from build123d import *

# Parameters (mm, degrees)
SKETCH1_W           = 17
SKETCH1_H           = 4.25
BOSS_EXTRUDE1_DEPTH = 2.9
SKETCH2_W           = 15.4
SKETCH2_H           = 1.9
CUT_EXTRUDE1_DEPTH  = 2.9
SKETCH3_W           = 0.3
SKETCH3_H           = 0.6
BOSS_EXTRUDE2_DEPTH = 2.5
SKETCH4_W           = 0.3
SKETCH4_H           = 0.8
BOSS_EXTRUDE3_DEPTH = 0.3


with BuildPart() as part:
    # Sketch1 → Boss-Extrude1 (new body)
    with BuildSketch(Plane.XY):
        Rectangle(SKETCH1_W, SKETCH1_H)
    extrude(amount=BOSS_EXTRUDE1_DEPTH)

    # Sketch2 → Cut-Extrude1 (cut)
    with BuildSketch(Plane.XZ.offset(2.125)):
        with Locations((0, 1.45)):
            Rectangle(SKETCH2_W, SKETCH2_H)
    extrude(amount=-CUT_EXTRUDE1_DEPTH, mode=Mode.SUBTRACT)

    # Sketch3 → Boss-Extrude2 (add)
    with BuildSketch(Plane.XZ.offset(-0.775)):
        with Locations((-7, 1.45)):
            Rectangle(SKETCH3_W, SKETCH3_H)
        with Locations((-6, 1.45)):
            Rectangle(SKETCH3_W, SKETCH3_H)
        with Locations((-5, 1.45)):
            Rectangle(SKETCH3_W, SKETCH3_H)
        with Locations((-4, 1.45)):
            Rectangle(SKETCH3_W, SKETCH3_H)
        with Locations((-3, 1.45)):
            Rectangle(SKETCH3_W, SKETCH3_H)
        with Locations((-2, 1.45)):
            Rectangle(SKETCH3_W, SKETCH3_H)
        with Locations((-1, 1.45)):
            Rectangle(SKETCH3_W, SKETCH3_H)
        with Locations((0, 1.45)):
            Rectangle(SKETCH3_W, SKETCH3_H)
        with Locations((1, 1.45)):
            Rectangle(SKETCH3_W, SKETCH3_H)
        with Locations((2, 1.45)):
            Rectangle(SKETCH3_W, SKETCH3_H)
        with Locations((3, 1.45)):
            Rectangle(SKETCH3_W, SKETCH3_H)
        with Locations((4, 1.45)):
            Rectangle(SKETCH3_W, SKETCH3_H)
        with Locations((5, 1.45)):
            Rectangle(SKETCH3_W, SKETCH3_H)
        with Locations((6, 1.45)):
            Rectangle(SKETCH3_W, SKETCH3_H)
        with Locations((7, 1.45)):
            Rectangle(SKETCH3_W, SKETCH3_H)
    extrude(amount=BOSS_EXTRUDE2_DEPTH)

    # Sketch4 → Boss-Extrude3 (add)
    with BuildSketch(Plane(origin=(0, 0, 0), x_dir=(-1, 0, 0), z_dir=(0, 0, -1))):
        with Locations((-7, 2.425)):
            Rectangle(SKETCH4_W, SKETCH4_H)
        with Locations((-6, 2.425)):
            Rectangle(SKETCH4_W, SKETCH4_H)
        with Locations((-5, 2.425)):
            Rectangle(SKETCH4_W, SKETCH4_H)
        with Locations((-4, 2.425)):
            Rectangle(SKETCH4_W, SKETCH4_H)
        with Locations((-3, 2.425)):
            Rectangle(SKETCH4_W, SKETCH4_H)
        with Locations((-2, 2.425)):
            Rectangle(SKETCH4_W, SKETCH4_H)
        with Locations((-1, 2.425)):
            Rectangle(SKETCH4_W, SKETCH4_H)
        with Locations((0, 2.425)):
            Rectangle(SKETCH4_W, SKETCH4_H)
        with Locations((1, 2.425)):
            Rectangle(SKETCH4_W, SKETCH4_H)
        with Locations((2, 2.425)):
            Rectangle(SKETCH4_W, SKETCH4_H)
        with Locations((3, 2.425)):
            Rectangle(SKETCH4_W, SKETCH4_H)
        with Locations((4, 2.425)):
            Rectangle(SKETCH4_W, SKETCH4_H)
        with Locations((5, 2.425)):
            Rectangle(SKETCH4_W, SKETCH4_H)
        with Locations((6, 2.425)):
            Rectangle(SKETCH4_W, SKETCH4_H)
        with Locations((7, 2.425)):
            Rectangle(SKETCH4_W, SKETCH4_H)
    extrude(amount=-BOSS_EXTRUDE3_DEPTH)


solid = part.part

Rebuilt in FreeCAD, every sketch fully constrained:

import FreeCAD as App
import Part
import Sketcher

V = App.Vector

doc = App.newDocument("Part")
body = doc.addObject("PartDesign::Body", "Body")

# Sketch on XY plane
sketch1 = body.newObject("Sketcher::SketchObject", "Sketch")
sketch1.AttachmentSupport = (doc.getObject("XY_Plane"), [""])
sketch1.MapMode = "FlatFace"
sketch1.addGeometry(Part.LineSegment(V(-8.5, 2.1, 0), V(-8.5, -2.1, 0)), False)
sketch1.addGeometry(Part.LineSegment(V(-8.5, -2.1, 0), V(8.5, -2.1, 0)), False)
sketch1.addGeometry(Part.LineSegment(V(8.5, -2.1, 0), V(8.5, 2.1, 0)), False)
sketch1.addGeometry(Part.LineSegment(V(8.5, 2.1, 0), V(-8.5, 2.1, 0)), False)
sketch1.addConstraint(Sketcher.Constraint("Coincident", 0, 2, 1, 1))
sketch1.addConstraint(Sketcher.Constraint("Coincident", 1, 2, 2, 1))
sketch1.addConstraint(Sketcher.Constraint("Coincident", 2, 2, 3, 1))
sketch1.addConstraint(Sketcher.Constraint("Coincident", 3, 2, 0, 1))
sketch1.addConstraint(Sketcher.Constraint("Vertical", 0))
sketch1.addConstraint(Sketcher.Constraint("Horizontal", 1))
sketch1.addConstraint(Sketcher.Constraint("Vertical", 2))
sketch1.addConstraint(Sketcher.Constraint("Horizontal", 3))
sketch1.addConstraint(Sketcher.Constraint("Symmetric", 0, 2, 2, 2, -1, 1))
sketch1.addConstraint(Sketcher.Constraint("DistanceX", 1, 1, 1, 2, 17.0))
sketch1.addConstraint(Sketcher.Constraint("DistanceY", 0, 2, 0, 1, 4.25))
pad1 = body.newObject("PartDesign::Pad", "Pad")
pad1.Profile = sketch1
pad1.Length = 2.9

# Sketch on XZ plane
sketch2 = body.newObject("Sketcher::SketchObject", "Sketch001")
sketch2.AttachmentSupport = (doc.getObject("XZ_Plane"), [""])
sketch2.MapMode = "FlatFace"
sketch2.AttachmentOffset = App.Placement(V(0, 0, 2.125), App.Rotation())
sketch2.addGeometry(Part.LineSegment(V(-7.7, 2.4, 0), V(-7.7, 0.5, 0)), False)
sketch2.addGeometry(Part.LineSegment(V(-7.7, 0.5, 0), V(7.7, 0.5, 0)), False)
sketch2.addGeometry(Part.LineSegment(V(7.7, 0.5, 0), V(7.7, 2.4, 0)), False)
sketch2.addGeometry(Part.LineSegment(V(7.7, 2.4, 0), V(-7.7, 2.4, 0)), False)
sketch2.addConstraint(Sketcher.Constraint("Coincident", 0, 2, 1, 1))
sketch2.addConstraint(Sketcher.Constraint("Coincident", 1, 2, 2, 1))
sketch2.addConstraint(Sketcher.Constraint("Coincident", 2, 2, 3, 1))
sketch2.addConstraint(Sketcher.Constraint("Coincident", 3, 2, 0, 1))
sketch2.addConstraint(Sketcher.Constraint("Vertical", 0))
sketch2.addConstraint(Sketcher.Constraint("Horizontal", 1))
sketch2.addConstraint(Sketcher.Constraint("Vertical", 2))
sketch2.addConstraint(Sketcher.Constraint("Horizontal", 3))
sketch2.addConstraint(Sketcher.Constraint("DistanceX", 1, 1, 1, 2, 15.4))
sketch2.addConstraint(Sketcher.Constraint("DistanceY", 0, 2, 0, 1, 1.9))
sketch2.addConstraint(Sketcher.Constraint("DistanceX", 0, 2, -1, 1, 7.7))
sketch2.addConstraint(Sketcher.Constraint("DistanceY", -1, 1, 0, 2, 0.5))
pocket1 = body.newObject("PartDesign::Pocket", "Pocket")
pocket1.Profile = sketch2
pocket1.Length = 2.9

# Sketch on XZ plane
sketch3 = body.newObject("Sketcher::SketchObject", "Sketch002")
sketch3.AttachmentSupport = (doc.getObject("XZ_Plane"), [""])
sketch3.MapMode = "FlatFace"
sketch3.AttachmentOffset = App.Placement(V(0, 0, -0.775), App.Rotation())
sketch3.addGeometry(Part.LineSegment(V(-7.15, 1.75, 0), V(-7.15, 1.15, 0)), False)
sketch3.addGeometry(Part.LineSegment(V(-7.15, 1.15, 0), V(-6.85, 1.15, 0)), False)
sketch3.addGeometry(Part.LineSegment(V(-6.85, 1.15, 0), V(-6.85, 1.75, 0)), False)
sketch3.addGeometry(Part.LineSegment(V(-6.85, 1.75, 0), V(-7.15, 1.75, 0)), False)
sketch3.addGeometry(Part.LineSegment(V(-6.15, 1.75, 0), V(-6.15, 1.15, 0)), False)
sketch3.addGeometry(Part.LineSegment(V(-6.15, 1.15, 0), V(-5.85, 1.15, 0)), False)
sketch3.addGeometry(Part.LineSegment(V(-5.85, 1.15, 0), V(-5.85, 1.75, 0)), False)
sketch3.addGeometry(Part.LineSegment(V(-5.85, 1.75, 0), V(-6.15, 1.75, 0)), False)
sketch3.addGeometry(Part.LineSegment(V(-5.15, 1.75, 0), V(-5.15, 1.15, 0)), False)
sketch3.addGeometry(Part.LineSegment(V(-5.15, 1.15, 0), V(-4.85, 1.15, 0)), False)
sketch3.addGeometry(Part.LineSegment(V(-4.85, 1.15, 0), V(-4.85, 1.75, 0)), False)
sketch3.addGeometry(Part.LineSegment(V(-4.85, 1.75, 0), V(-5.15, 1.75, 0)), False)
sketch3.addGeometry(Part.LineSegment(V(-4.15, 1.75, 0), V(-4.15, 1.15, 0)), False)
sketch3.addGeometry(Part.LineSegment(V(-4.15, 1.15, 0), V(-3.85, 1.15, 0)), False)
sketch3.addGeometry(Part.LineSegment(V(-3.85, 1.15, 0), V(-3.85, 1.75, 0)), False)
sketch3.addGeometry(Part.LineSegment(V(-3.85, 1.75, 0), V(-4.15, 1.75, 0)), False)
sketch3.addGeometry(Part.LineSegment(V(-3.15, 1.75, 0), V(-3.15, 1.15, 0)), False)
sketch3.addGeometry(Part.LineSegment(V(-3.15, 1.15, 0), V(-2.85, 1.15, 0)), False)
sketch3.addGeometry(Part.LineSegment(V(-2.85, 1.15, 0), V(-2.85, 1.75, 0)), False)
sketch3.addGeometry(Part.LineSegment(V(-2.85, 1.75, 0), V(-3.15, 1.75, 0)), False)
sketch3.addGeometry(Part.LineSegment(V(-2.15, 1.75, 0), V(-2.15, 1.15, 0)), False)
sketch3.addGeometry(Part.LineSegment(V(-2.15, 1.15, 0), V(-1.85, 1.15, 0)), False)
sketch3.addGeometry(Part.LineSegment(V(-1.85, 1.15, 0), V(-1.85, 1.75, 0)), False)
sketch3.addGeometry(Part.LineSegment(V(-1.85, 1.75, 0), V(-2.15, 1.75, 0)), False)
sketch3.addGeometry(Part.LineSegment(V(-1.15, 1.75, 0), V(-1.15, 1.15, 0)), False)
sketch3.addGeometry(Part.LineSegment(V(-1.15, 1.15, 0), V(-0.85, 1.15, 0)), False)
sketch3.addGeometry(Part.LineSegment(V(-0.85, 1.15, 0), V(-0.85, 1.75, 0)), False)
sketch3.addGeometry(Part.LineSegment(V(-0.85, 1.75, 0), V(-1.15, 1.75, 0)), False)
sketch3.addGeometry(Part.LineSegment(V(-0.15, 1.75, 0), V(-0.15, 1.15, 0)), False)
sketch3.addGeometry(Part.LineSegment(V(-0.15, 1.15, 0), V(0.15, 1.15, 0)), False)
sketch3.addGeometry(Part.LineSegment(V(0.15, 1.15, 0), V(0.15, 1.75, 0)), False)
sketch3.addGeometry(Part.LineSegment(V(0.15, 1.75, 0), V(-0.15, 1.75, 0)), False)
sketch3.addGeometry(Part.LineSegment(V(0.85, 1.75, 0), V(0.85, 1.15, 0)), False)
sketch3.addGeometry(Part.LineSegment(V(0.85, 1.15, 0), V(1.15, 1.15, 0)), False)
sketch3.addGeometry(Part.LineSegment(V(1.15, 1.15, 0), V(1.15, 1.75, 0)), False)
sketch3.addGeometry(Part.LineSegment(V(1.15, 1.75, 0), V(0.85, 1.75, 0)), False)
sketch3.addGeometry(Part.LineSegment(V(1.85, 1.75, 0), V(1.85, 1.15, 0)), False)
sketch3.addGeometry(Part.LineSegment(V(1.85, 1.15, 0), V(2.15, 1.15, 0)), False)
sketch3.addGeometry(Part.LineSegment(V(2.15, 1.15, 0), V(2.15, 1.75, 0)), False)
sketch3.addGeometry(Part.LineSegment(V(2.15, 1.75, 0), V(1.85, 1.75, 0)), False)
sketch3.addGeometry(Part.LineSegment(V(2.85, 1.75, 0), V(2.85, 1.15, 0)), False)
sketch3.addGeometry(Part.LineSegment(V(2.85, 1.15, 0), V(3.15, 1.15, 0)), False)
sketch3.addGeometry(Part.LineSegment(V(3.15, 1.15, 0), V(3.15, 1.75, 0)), False)
sketch3.addGeometry(Part.LineSegment(V(3.15, 1.75, 0), V(2.85, 1.75, 0)), False)
sketch3.addGeometry(Part.LineSegment(V(3.85, 1.75, 0), V(3.85, 1.15, 0)), False)
sketch3.addGeometry(Part.LineSegment(V(3.85, 1.15, 0), V(4.15, 1.15, 0)), False)
sketch3.addGeometry(Part.LineSegment(V(4.15, 1.15, 0), V(4.15, 1.75, 0)), False)
sketch3.addGeometry(Part.LineSegment(V(4.15, 1.75, 0), V(3.85, 1.75, 0)), False)
sketch3.addGeometry(Part.LineSegment(V(4.85, 1.75, 0), V(4.85, 1.15, 0)), False)
sketch3.addGeometry(Part.LineSegment(V(4.85, 1.15, 0), V(5.15, 1.15, 0)), False)
sketch3.addGeometry(Part.LineSegment(V(5.15, 1.15, 0), V(5.15, 1.75, 0)), False)
sketch3.addGeometry(Part.LineSegment(V(5.15, 1.75, 0), V(4.85, 1.75, 0)), False)
sketch3.addGeometry(Part.LineSegment(V(5.85, 1.75, 0), V(5.85, 1.15, 0)), False)
sketch3.addGeometry(Part.LineSegment(V(5.85, 1.15, 0), V(6.15, 1.15, 0)), False)
sketch3.addGeometry(Part.LineSegment(V(6.15, 1.15, 0), V(6.15, 1.75, 0)), False)
sketch3.addGeometry(Part.LineSegment(V(6.15, 1.75, 0), V(5.85, 1.75, 0)), False)
sketch3.addGeometry(Part.LineSegment(V(6.85, 1.75, 0), V(6.85, 1.15, 0)), False)
sketch3.addGeometry(Part.LineSegment(V(6.85, 1.15, 0), V(7.15, 1.15, 0)), False)
sketch3.addGeometry(Part.LineSegment(V(7.15, 1.15, 0), V(7.15, 1.75, 0)), False)
sketch3.addGeometry(Part.LineSegment(V(7.15, 1.75, 0), V(6.85, 1.75, 0)), False)
sketch3.addConstraint(Sketcher.Constraint("Coincident", 0, 2, 1, 1))
sketch3.addConstraint(Sketcher.Constraint("Coincident", 1, 2, 2, 1))
sketch3.addConstraint(Sketcher.Constraint("Coincident", 2, 2, 3, 1))
sketch3.addConstraint(Sketcher.Constraint("Coincident", 3, 2, 0, 1))
sketch3.addConstraint(Sketcher.Constraint("Coincident", 4, 2, 5, 1))
sketch3.addConstraint(Sketcher.Constraint("Coincident", 5, 2, 6, 1))
sketch3.addConstraint(Sketcher.Constraint("Coincident", 6, 2, 7, 1))
sketch3.addConstraint(Sketcher.Constraint("Coincident", 7, 2, 4, 1))
sketch3.addConstraint(Sketcher.Constraint("Coincident", 8, 2, 9, 1))
sketch3.addConstraint(Sketcher.Constraint("Coincident", 9, 2, 10, 1))
sketch3.addConstraint(Sketcher.Constraint("Coincident", 10, 2, 11, 1))
sketch3.addConstraint(Sketcher.Constraint("Coincident", 11, 2, 8, 1))
sketch3.addConstraint(Sketcher.Constraint("Coincident", 12, 2, 13, 1))
sketch3.addConstraint(Sketcher.Constraint("Coincident", 13, 2, 14, 1))
sketch3.addConstraint(Sketcher.Constraint("Coincident", 14, 2, 15, 1))
sketch3.addConstraint(Sketcher.Constraint("Coincident", 15, 2, 12, 1))
sketch3.addConstraint(Sketcher.Constraint("Coincident", 16, 2, 17, 1))
sketch3.addConstraint(Sketcher.Constraint("Coincident", 17, 2, 18, 1))
sketch3.addConstraint(Sketcher.Constraint("Coincident", 18, 2, 19, 1))
sketch3.addConstraint(Sketcher.Constraint("Coincident", 19, 2, 16, 1))
sketch3.addConstraint(Sketcher.Constraint("Coincident", 20, 2, 21, 1))
sketch3.addConstraint(Sketcher.Constraint("Coincident", 21, 2, 22, 1))
sketch3.addConstraint(Sketcher.Constraint("Coincident", 22, 2, 23, 1))
sketch3.addConstraint(Sketcher.Constraint("Coincident", 23, 2, 20, 1))
sketch3.addConstraint(Sketcher.Constraint("Coincident", 24, 2, 25, 1))
sketch3.addConstraint(Sketcher.Constraint("Coincident", 25, 2, 26, 1))
sketch3.addConstraint(Sketcher.Constraint("Coincident", 26, 2, 27, 1))
sketch3.addConstraint(Sketcher.Constraint("Coincident", 27, 2, 24, 1))
sketch3.addConstraint(Sketcher.Constraint("Coincident", 28, 2, 29, 1))
sketch3.addConstraint(Sketcher.Constraint("Coincident", 29, 2, 30, 1))
sketch3.addConstraint(Sketcher.Constraint("Coincident", 30, 2, 31, 1))
sketch3.addConstraint(Sketcher.Constraint("Coincident", 31, 2, 28, 1))
sketch3.addConstraint(Sketcher.Constraint("Coincident", 32, 2, 33, 1))
sketch3.addConstraint(Sketcher.Constraint("Coincident", 33, 2, 34, 1))
sketch3.addConstraint(Sketcher.Constraint("Coincident", 34, 2, 35, 1))
sketch3.addConstraint(Sketcher.Constraint("Coincident", 35, 2, 32, 1))
sketch3.addConstraint(Sketcher.Constraint("Coincident", 36, 2, 37, 1))
sketch3.addConstraint(Sketcher.Constraint("Coincident", 37, 2, 38, 1))
sketch3.addConstraint(Sketcher.Constraint("Coincident", 38, 2, 39, 1))
sketch3.addConstraint(Sketcher.Constraint("Coincident", 39, 2, 36, 1))
sketch3.addConstraint(Sketcher.Constraint("Coincident", 40, 2, 41, 1))
sketch3.addConstraint(Sketcher.Constraint("Coincident", 41, 2, 42, 1))
sketch3.addConstraint(Sketcher.Constraint("Coincident", 42, 2, 43, 1))
sketch3.addConstraint(Sketcher.Constraint("Coincident", 43, 2, 40, 1))
sketch3.addConstraint(Sketcher.Constraint("Coincident", 44, 2, 45, 1))
sketch3.addConstraint(Sketcher.Constraint("Coincident", 45, 2, 46, 1))
sketch3.addConstraint(Sketcher.Constraint("Coincident", 46, 2, 47, 1))
sketch3.addConstraint(Sketcher.Constraint("Coincident", 47, 2, 44, 1))
sketch3.addConstraint(Sketcher.Constraint("Coincident", 48, 2, 49, 1))
sketch3.addConstraint(Sketcher.Constraint("Coincident", 49, 2, 50, 1))
sketch3.addConstraint(Sketcher.Constraint("Coincident", 50, 2, 51, 1))
sketch3.addConstraint(Sketcher.Constraint("Coincident", 51, 2, 48, 1))
sketch3.addConstraint(Sketcher.Constraint("Coincident", 52, 2, 53, 1))
sketch3.addConstraint(Sketcher.Constraint("Coincident", 53, 2, 54, 1))
sketch3.addConstraint(Sketcher.Constraint("Coincident", 54, 2, 55, 1))
sketch3.addConstraint(Sketcher.Constraint("Coincident", 55, 2, 52, 1))
sketch3.addConstraint(Sketcher.Constraint("Coincident", 56, 2, 57, 1))
sketch3.addConstraint(Sketcher.Constraint("Coincident", 57, 2, 58, 1))
sketch3.addConstraint(Sketcher.Constraint("Coincident", 58, 2, 59, 1))
sketch3.addConstraint(Sketcher.Constraint("Coincident", 59, 2, 56, 1))
sketch3.addConstraint(Sketcher.Constraint("Vertical", 0))
sketch3.addConstraint(Sketcher.Constraint("Horizontal", 1))
sketch3.addConstraint(Sketcher.Constraint("Vertical", 2))
sketch3.addConstraint(Sketcher.Constraint("Horizontal", 3))
sketch3.addConstraint(Sketcher.Constraint("Vertical", 4))
sketch3.addConstraint(Sketcher.Constraint("Horizontal", 5))
sketch3.addConstraint(Sketcher.Constraint("Vertical", 6))
sketch3.addConstraint(Sketcher.Constraint("Horizontal", 7))
sketch3.addConstraint(Sketcher.Constraint("Vertical", 8))
sketch3.addConstraint(Sketcher.Constraint("Horizontal", 9))
sketch3.addConstraint(Sketcher.Constraint("Vertical", 10))
sketch3.addConstraint(Sketcher.Constraint("Horizontal", 11))
sketch3.addConstraint(Sketcher.Constraint("Vertical", 12))
sketch3.addConstraint(Sketcher.Constraint("Horizontal", 13))
sketch3.addConstraint(Sketcher.Constraint("Vertical", 14))
sketch3.addConstraint(Sketcher.Constraint("Horizontal", 15))
sketch3.addConstraint(Sketcher.Constraint("Vertical", 16))
sketch3.addConstraint(Sketcher.Constraint("Horizontal", 17))
sketch3.addConstraint(Sketcher.Constraint("Vertical", 18))
sketch3.addConstraint(Sketcher.Constraint("Horizontal", 19))
sketch3.addConstraint(Sketcher.Constraint("Vertical", 20))
sketch3.addConstraint(Sketcher.Constraint("Horizontal", 21))
sketch3.addConstraint(Sketcher.Constraint("Vertical", 22))
sketch3.addConstraint(Sketcher.Constraint("Horizontal", 23))
sketch3.addConstraint(Sketcher.Constraint("Vertical", 24))
sketch3.addConstraint(Sketcher.Constraint("Horizontal", 25))
sketch3.addConstraint(Sketcher.Constraint("Vertical", 26))
sketch3.addConstraint(Sketcher.Constraint("Horizontal", 27))
sketch3.addConstraint(Sketcher.Constraint("Vertical", 28))
sketch3.addConstraint(Sketcher.Constraint("Horizontal", 29))
sketch3.addConstraint(Sketcher.Constraint("Vertical", 30))
sketch3.addConstraint(Sketcher.Constraint("Horizontal", 31))
sketch3.addConstraint(Sketcher.Constraint("Vertical", 32))
sketch3.addConstraint(Sketcher.Constraint("Horizontal", 33))
sketch3.addConstraint(Sketcher.Constraint("Vertical", 34))
sketch3.addConstraint(Sketcher.Constraint("Horizontal", 35))
sketch3.addConstraint(Sketcher.Constraint("Vertical", 36))
sketch3.addConstraint(Sketcher.Constraint("Horizontal", 37))
sketch3.addConstraint(Sketcher.Constraint("Vertical", 38))
sketch3.addConstraint(Sketcher.Constraint("Horizontal", 39))
sketch3.addConstraint(Sketcher.Constraint("Vertical", 40))
sketch3.addConstraint(Sketcher.Constraint("Horizontal", 41))
sketch3.addConstraint(Sketcher.Constraint("Vertical", 42))
sketch3.addConstraint(Sketcher.Constraint("Horizontal", 43))
sketch3.addConstraint(Sketcher.Constraint("Vertical", 44))
sketch3.addConstraint(Sketcher.Constraint("Horizontal", 45))
sketch3.addConstraint(Sketcher.Constraint("Vertical", 46))
sketch3.addConstraint(Sketcher.Constraint("Horizontal", 47))
sketch3.addConstraint(Sketcher.Constraint("Vertical", 48))
sketch3.addConstraint(Sketcher.Constraint("Horizontal", 49))
sketch3.addConstraint(Sketcher.Constraint("Vertical", 50))
sketch3.addConstraint(Sketcher.Constraint("Horizontal", 51))
sketch3.addConstraint(Sketcher.Constraint("Vertical", 52))
sketch3.addConstraint(Sketcher.Constraint("Horizontal", 53))
sketch3.addConstraint(Sketcher.Constraint("Vertical", 54))
sketch3.addConstraint(Sketcher.Constraint("Horizontal", 55))
sketch3.addConstraint(Sketcher.Constraint("Vertical", 56))
sketch3.addConstraint(Sketcher.Constraint("Horizontal", 57))
sketch3.addConstraint(Sketcher.Constraint("Vertical", 58))
sketch3.addConstraint(Sketcher.Constraint("Horizontal", 59))
sketch3.addConstraint(Sketcher.Constraint("Symmetric", 25, 2, 32, 2, -2))
sketch3.addConstraint(Sketcher.Constraint("Symmetric", 27, 2, 34, 2, -2))
sketch3.addConstraint(Sketcher.Constraint("Symmetric", 21, 2, 36, 2, -2))
sketch3.addConstraint(Sketcher.Constraint("Symmetric", 23, 2, 38, 2, -2))
sketch3.addConstraint(Sketcher.Constraint("Symmetric", 17, 2, 40, 2, -2))
sketch3.addConstraint(Sketcher.Constraint("Symmetric", 19, 2, 42, 2, -2))
sketch3.addConstraint(Sketcher.Constraint("Symmetric", 13, 2, 44, 2, -2))
sketch3.addConstraint(Sketcher.Constraint("Symmetric", 15, 2, 46, 2, -2))
sketch3.addConstraint(Sketcher.Constraint("Symmetric", 9, 2, 48, 2, -2))
sketch3.addConstraint(Sketcher.Constraint("Symmetric", 11, 2, 50, 2, -2))
sketch3.addConstraint(Sketcher.Constraint("Symmetric", 5, 2, 52, 2, -2))
sketch3.addConstraint(Sketcher.Constraint("Symmetric", 7, 2, 54, 2, -2))
sketch3.addConstraint(Sketcher.Constraint("Symmetric", 1, 2, 56, 2, -2))
sketch3.addConstraint(Sketcher.Constraint("Symmetric", 3, 2, 58, 2, -2))
sketch3.addConstraint(Sketcher.Constraint("Horizontal", 1, 2, 4, 2))
sketch3.addConstraint(Sketcher.Constraint("Horizontal", 3, 2, 6, 2))
sketch3.addConstraint(Sketcher.Constraint("Horizontal", 5, 2, 8, 2))
sketch3.addConstraint(Sketcher.Constraint("Horizontal", 7, 2, 10, 2))
sketch3.addConstraint(Sketcher.Constraint("Horizontal", 9, 2, 12, 2))
sketch3.addConstraint(Sketcher.Constraint("Horizontal", 11, 2, 14, 2))
sketch3.addConstraint(Sketcher.Constraint("Horizontal", 13, 2, 16, 2))
sketch3.addConstraint(Sketcher.Constraint("Horizontal", 15, 2, 18, 2))
sketch3.addConstraint(Sketcher.Constraint("Horizontal", 17, 2, 20, 2))
sketch3.addConstraint(Sketcher.Constraint("Horizontal", 19, 2, 22, 2))
sketch3.addConstraint(Sketcher.Constraint("Horizontal", 21, 2, 24, 2))
sketch3.addConstraint(Sketcher.Constraint("Horizontal", 23, 2, 26, 2))
sketch3.addConstraint(Sketcher.Constraint("Horizontal", 25, 2, 28, 2))
sketch3.addConstraint(Sketcher.Constraint("Horizontal", 27, 2, 30, 2))
sketch3.addConstraint(Sketcher.Constraint("Equal", 3, 5))
sketch3.addConstraint(Sketcher.Constraint("Equal", 7, 9))
sketch3.addConstraint(Sketcher.Constraint("Equal", 11, 13))
sketch3.addConstraint(Sketcher.Constraint("Equal", 15, 17))
sketch3.addConstraint(Sketcher.Constraint("Equal", 19, 21))
sketch3.addConstraint(Sketcher.Constraint("Equal", 23, 25))
sketch3.addConstraint(Sketcher.Constraint("Equal", 27, 29))
sketch3.addConstraint(Sketcher.Constraint("DistanceX", 1, 1, 1, 2, 0.3))
sketch3.addConstraint(Sketcher.Constraint("DistanceY", 0, 2, 0, 1, 0.6))
sketch3.addConstraint(Sketcher.Constraint("DistanceX", 0, 2, 4, 2, 1.0))
sketch3.addConstraint(Sketcher.Constraint("DistanceX", 4, 2, 8, 2, 1.0))
sketch3.addConstraint(Sketcher.Constraint("DistanceX", 8, 2, 12, 2, 1.0))
sketch3.addConstraint(Sketcher.Constraint("DistanceX", 12, 2, 16, 2, 1.0))
sketch3.addConstraint(Sketcher.Constraint("DistanceX", 16, 2, 20, 2, 1.0))
sketch3.addConstraint(Sketcher.Constraint("DistanceX", 20, 2, 24, 2, 1.0))
sketch3.addConstraint(Sketcher.Constraint("DistanceX", 24, 2, 28, 2, 1.0))
sketch3.addConstraint(Sketcher.Constraint("DistanceX", 28, 2, 32, 2, 1.0))
sketch3.addConstraint(Sketcher.Constraint("DistanceY", -1, 1, 0, 2, 1.15))
pad2 = body.newObject("PartDesign::Pad", "Pad001")
pad2.Profile = sketch3
pad2.Length = 2.5

# Sketch on XY plane
sketch4 = body.newObject("Sketcher::SketchObject", "Sketch003")
sketch4.AttachmentSupport = (doc.getObject("XY_Plane"), [""])
sketch4.MapMode = "FlatFace"
sketch4.addGeometry(Part.LineSegment(V(7.15, 2.83, 0), V(7.15, 2.02, 0)), False)
sketch4.addGeometry(Part.LineSegment(V(7.15, 2.02, 0), V(6.85, 2.02, 0)), False)
sketch4.addGeometry(Part.LineSegment(V(6.85, 2.02, 0), V(6.85, 2.83, 0)), False)
sketch4.addGeometry(Part.LineSegment(V(6.85, 2.83, 0), V(7.15, 2.83, 0)), False)
sketch4.addGeometry(Part.LineSegment(V(6.15, 2.83, 0), V(6.15, 2.02, 0)), False)
sketch4.addGeometry(Part.LineSegment(V(6.15, 2.02, 0), V(5.85, 2.02, 0)), False)
sketch4.addGeometry(Part.LineSegment(V(5.85, 2.02, 0), V(5.85, 2.83, 0)), False)
sketch4.addGeometry(Part.LineSegment(V(5.85, 2.83, 0), V(6.15, 2.83, 0)), False)
sketch4.addGeometry(Part.LineSegment(V(5.15, 2.83, 0), V(5.15, 2.02, 0)), False)
sketch4.addGeometry(Part.LineSegment(V(5.15, 2.02, 0), V(4.85, 2.02, 0)), False)
sketch4.addGeometry(Part.LineSegment(V(4.85, 2.02, 0), V(4.85, 2.83, 0)), False)
sketch4.addGeometry(Part.LineSegment(V(4.85, 2.83, 0), V(5.15, 2.83, 0)), False)
sketch4.addGeometry(Part.LineSegment(V(4.15, 2.83, 0), V(4.15, 2.02, 0)), False)
sketch4.addGeometry(Part.LineSegment(V(4.15, 2.02, 0), V(3.85, 2.02, 0)), False)
sketch4.addGeometry(Part.LineSegment(V(3.85, 2.02, 0), V(3.85, 2.83, 0)), False)
sketch4.addGeometry(Part.LineSegment(V(3.85, 2.83, 0), V(4.15, 2.83, 0)), False)
sketch4.addGeometry(Part.LineSegment(V(3.15, 2.83, 0), V(3.15, 2.02, 0)), False)
sketch4.addGeometry(Part.LineSegment(V(3.15, 2.02, 0), V(2.85, 2.02, 0)), False)
sketch4.addGeometry(Part.LineSegment(V(2.85, 2.02, 0), V(2.85, 2.83, 0)), False)
sketch4.addGeometry(Part.LineSegment(V(2.85, 2.83, 0), V(3.15, 2.83, 0)), False)
sketch4.addGeometry(Part.LineSegment(V(2.15, 2.83, 0), V(2.15, 2.02, 0)), False)
sketch4.addGeometry(Part.LineSegment(V(2.15, 2.02, 0), V(1.85, 2.02, 0)), False)
sketch4.addGeometry(Part.LineSegment(V(1.85, 2.02, 0), V(1.85, 2.83, 0)), False)
sketch4.addGeometry(Part.LineSegment(V(1.85, 2.83, 0), V(2.15, 2.83, 0)), False)
sketch4.addGeometry(Part.LineSegment(V(1.15, 2.83, 0), V(1.15, 2.02, 0)), False)
sketch4.addGeometry(Part.LineSegment(V(1.15, 2.02, 0), V(0.85, 2.02, 0)), False)
sketch4.addGeometry(Part.LineSegment(V(0.85, 2.02, 0), V(0.85, 2.83, 0)), False)
sketch4.addGeometry(Part.LineSegment(V(0.85, 2.83, 0), V(1.15, 2.83, 0)), False)
sketch4.addGeometry(Part.LineSegment(V(0.15, 2.83, 0), V(0.15, 2.02, 0)), False)
sketch4.addGeometry(Part.LineSegment(V(0.15, 2.02, 0), V(-0.15, 2.02, 0)), False)
sketch4.addGeometry(Part.LineSegment(V(-0.15, 2.02, 0), V(-0.15, 2.83, 0)), False)
sketch4.addGeometry(Part.LineSegment(V(-0.15, 2.83, 0), V(0.15, 2.83, 0)), False)
sketch4.addGeometry(Part.LineSegment(V(-0.85, 2.83, 0), V(-0.85, 2.02, 0)), False)
sketch4.addGeometry(Part.LineSegment(V(-0.85, 2.02, 0), V(-1.15, 2.02, 0)), False)
sketch4.addGeometry(Part.LineSegment(V(-1.15, 2.02, 0), V(-1.15, 2.83, 0)), False)
sketch4.addGeometry(Part.LineSegment(V(-1.15, 2.83, 0), V(-0.85, 2.83, 0)), False)
sketch4.addGeometry(Part.LineSegment(V(-1.85, 2.83, 0), V(-1.85, 2.02, 0)), False)
sketch4.addGeometry(Part.LineSegment(V(-1.85, 2.02, 0), V(-2.15, 2.02, 0)), False)
sketch4.addGeometry(Part.LineSegment(V(-2.15, 2.02, 0), V(-2.15, 2.83, 0)), False)
sketch4.addGeometry(Part.LineSegment(V(-2.15, 2.83, 0), V(-1.85, 2.83, 0)), False)
sketch4.addGeometry(Part.LineSegment(V(-2.85, 2.83, 0), V(-2.85, 2.02, 0)), False)
sketch4.addGeometry(Part.LineSegment(V(-2.85, 2.02, 0), V(-3.15, 2.02, 0)), False)
sketch4.addGeometry(Part.LineSegment(V(-3.15, 2.02, 0), V(-3.15, 2.83, 0)), False)
sketch4.addGeometry(Part.LineSegment(V(-3.15, 2.83, 0), V(-2.85, 2.83, 0)), False)
sketch4.addGeometry(Part.LineSegment(V(-3.85, 2.83, 0), V(-3.85, 2.02, 0)), False)
sketch4.addGeometry(Part.LineSegment(V(-3.85, 2.02, 0), V(-4.15, 2.02, 0)), False)
sketch4.addGeometry(Part.LineSegment(V(-4.15, 2.02, 0), V(-4.15, 2.83, 0)), False)
sketch4.addGeometry(Part.LineSegment(V(-4.15, 2.83, 0), V(-3.85, 2.83, 0)), False)
sketch4.addGeometry(Part.LineSegment(V(-4.85, 2.83, 0), V(-4.85, 2.02, 0)), False)
sketch4.addGeometry(Part.LineSegment(V(-4.85, 2.02, 0), V(-5.15, 2.02, 0)), False)
sketch4.addGeometry(Part.LineSegment(V(-5.15, 2.02, 0), V(-5.15, 2.83, 0)), False)
sketch4.addGeometry(Part.LineSegment(V(-5.15, 2.83, 0), V(-4.85, 2.83, 0)), False)
sketch4.addGeometry(Part.LineSegment(V(-5.85, 2.83, 0), V(-5.85, 2.02, 0)), False)
sketch4.addGeometry(Part.LineSegment(V(-5.85, 2.02, 0), V(-6.15, 2.02, 0)), False)
sketch4.addGeometry(Part.LineSegment(V(-6.15, 2.02, 0), V(-6.15, 2.83, 0)), False)
sketch4.addGeometry(Part.LineSegment(V(-6.15, 2.83, 0), V(-5.85, 2.83, 0)), False)
sketch4.addGeometry(Part.LineSegment(V(-6.85, 2.83, 0), V(-6.85, 2.02, 0)), False)
sketch4.addGeometry(Part.LineSegment(V(-6.85, 2.02, 0), V(-7.15, 2.02, 0)), False)
sketch4.addGeometry(Part.LineSegment(V(-7.15, 2.02, 0), V(-7.15, 2.83, 0)), False)
sketch4.addGeometry(Part.LineSegment(V(-7.15, 2.83, 0), V(-6.85, 2.83, 0)), False)
sketch4.addConstraint(Sketcher.Constraint("Coincident", 0, 2, 1, 1))
sketch4.addConstraint(Sketcher.Constraint("Coincident", 1, 2, 2, 1))
sketch4.addConstraint(Sketcher.Constraint("Coincident", 2, 2, 3, 1))
sketch4.addConstraint(Sketcher.Constraint("Coincident", 3, 2, 0, 1))
sketch4.addConstraint(Sketcher.Constraint("Coincident", 4, 2, 5, 1))
sketch4.addConstraint(Sketcher.Constraint("Coincident", 5, 2, 6, 1))
sketch4.addConstraint(Sketcher.Constraint("Coincident", 6, 2, 7, 1))
sketch4.addConstraint(Sketcher.Constraint("Coincident", 7, 2, 4, 1))
sketch4.addConstraint(Sketcher.Constraint("Coincident", 8, 2, 9, 1))
sketch4.addConstraint(Sketcher.Constraint("Coincident", 9, 2, 10, 1))
sketch4.addConstraint(Sketcher.Constraint("Coincident", 10, 2, 11, 1))
sketch4.addConstraint(Sketcher.Constraint("Coincident", 11, 2, 8, 1))
sketch4.addConstraint(Sketcher.Constraint("Coincident", 12, 2, 13, 1))
sketch4.addConstraint(Sketcher.Constraint("Coincident", 13, 2, 14, 1))
sketch4.addConstraint(Sketcher.Constraint("Coincident", 14, 2, 15, 1))
sketch4.addConstraint(Sketcher.Constraint("Coincident", 15, 2, 12, 1))
sketch4.addConstraint(Sketcher.Constraint("Coincident", 16, 2, 17, 1))
sketch4.addConstraint(Sketcher.Constraint("Coincident", 17, 2, 18, 1))
sketch4.addConstraint(Sketcher.Constraint("Coincident", 18, 2, 19, 1))
sketch4.addConstraint(Sketcher.Constraint("Coincident", 19, 2, 16, 1))
sketch4.addConstraint(Sketcher.Constraint("Coincident", 20, 2, 21, 1))
sketch4.addConstraint(Sketcher.Constraint("Coincident", 21, 2, 22, 1))
sketch4.addConstraint(Sketcher.Constraint("Coincident", 22, 2, 23, 1))
sketch4.addConstraint(Sketcher.Constraint("Coincident", 23, 2, 20, 1))
sketch4.addConstraint(Sketcher.Constraint("Coincident", 24, 2, 25, 1))
sketch4.addConstraint(Sketcher.Constraint("Coincident", 25, 2, 26, 1))
sketch4.addConstraint(Sketcher.Constraint("Coincident", 26, 2, 27, 1))
sketch4.addConstraint(Sketcher.Constraint("Coincident", 27, 2, 24, 1))
sketch4.addConstraint(Sketcher.Constraint("Coincident", 28, 2, 29, 1))
sketch4.addConstraint(Sketcher.Constraint("Coincident", 29, 2, 30, 1))
sketch4.addConstraint(Sketcher.Constraint("Coincident", 30, 2, 31, 1))
sketch4.addConstraint(Sketcher.Constraint("Coincident", 31, 2, 28, 1))
sketch4.addConstraint(Sketcher.Constraint("Coincident", 32, 2, 33, 1))
sketch4.addConstraint(Sketcher.Constraint("Coincident", 33, 2, 34, 1))
sketch4.addConstraint(Sketcher.Constraint("Coincident", 34, 2, 35, 1))
sketch4.addConstraint(Sketcher.Constraint("Coincident", 35, 2, 32, 1))
sketch4.addConstraint(Sketcher.Constraint("Coincident", 36, 2, 37, 1))
sketch4.addConstraint(Sketcher.Constraint("Coincident", 37, 2, 38, 1))
sketch4.addConstraint(Sketcher.Constraint("Coincident", 38, 2, 39, 1))
sketch4.addConstraint(Sketcher.Constraint("Coincident", 39, 2, 36, 1))
sketch4.addConstraint(Sketcher.Constraint("Coincident", 40, 2, 41, 1))
sketch4.addConstraint(Sketcher.Constraint("Coincident", 41, 2, 42, 1))
sketch4.addConstraint(Sketcher.Constraint("Coincident", 42, 2, 43, 1))
sketch4.addConstraint(Sketcher.Constraint("Coincident", 43, 2, 40, 1))
sketch4.addConstraint(Sketcher.Constraint("Coincident", 44, 2, 45, 1))
sketch4.addConstraint(Sketcher.Constraint("Coincident", 45, 2, 46, 1))
sketch4.addConstraint(Sketcher.Constraint("Coincident", 46, 2, 47, 1))
sketch4.addConstraint(Sketcher.Constraint("Coincident", 47, 2, 44, 1))
sketch4.addConstraint(Sketcher.Constraint("Coincident", 48, 2, 49, 1))
sketch4.addConstraint(Sketcher.Constraint("Coincident", 49, 2, 50, 1))
sketch4.addConstraint(Sketcher.Constraint("Coincident", 50, 2, 51, 1))
sketch4.addConstraint(Sketcher.Constraint("Coincident", 51, 2, 48, 1))
sketch4.addConstraint(Sketcher.Constraint("Coincident", 52, 2, 53, 1))
sketch4.addConstraint(Sketcher.Constraint("Coincident", 53, 2, 54, 1))
sketch4.addConstraint(Sketcher.Constraint("Coincident", 54, 2, 55, 1))
sketch4.addConstraint(Sketcher.Constraint("Coincident", 55, 2, 52, 1))
sketch4.addConstraint(Sketcher.Constraint("Coincident", 56, 2, 57, 1))
sketch4.addConstraint(Sketcher.Constraint("Coincident", 57, 2, 58, 1))
sketch4.addConstraint(Sketcher.Constraint("Coincident", 58, 2, 59, 1))
sketch4.addConstraint(Sketcher.Constraint("Coincident", 59, 2, 56, 1))
sketch4.addConstraint(Sketcher.Constraint("Vertical", 0))
sketch4.addConstraint(Sketcher.Constraint("Horizontal", 1))
sketch4.addConstraint(Sketcher.Constraint("Vertical", 2))
sketch4.addConstraint(Sketcher.Constraint("Horizontal", 3))
sketch4.addConstraint(Sketcher.Constraint("Vertical", 4))
sketch4.addConstraint(Sketcher.Constraint("Horizontal", 5))
sketch4.addConstraint(Sketcher.Constraint("Vertical", 6))
sketch4.addConstraint(Sketcher.Constraint("Horizontal", 7))
sketch4.addConstraint(Sketcher.Constraint("Vertical", 8))
sketch4.addConstraint(Sketcher.Constraint("Horizontal", 9))
sketch4.addConstraint(Sketcher.Constraint("Vertical", 10))
sketch4.addConstraint(Sketcher.Constraint("Horizontal", 11))
sketch4.addConstraint(Sketcher.Constraint("Vertical", 12))
sketch4.addConstraint(Sketcher.Constraint("Horizontal", 13))
sketch4.addConstraint(Sketcher.Constraint("Vertical", 14))
sketch4.addConstraint(Sketcher.Constraint("Horizontal", 15))
sketch4.addConstraint(Sketcher.Constraint("Vertical", 16))
sketch4.addConstraint(Sketcher.Constraint("Horizontal", 17))
sketch4.addConstraint(Sketcher.Constraint("Vertical", 18))
sketch4.addConstraint(Sketcher.Constraint("Horizontal", 19))
sketch4.addConstraint(Sketcher.Constraint("Vertical", 20))
sketch4.addConstraint(Sketcher.Constraint("Horizontal", 21))
sketch4.addConstraint(Sketcher.Constraint("Vertical", 22))
sketch4.addConstraint(Sketcher.Constraint("Horizontal", 23))
sketch4.addConstraint(Sketcher.Constraint("Vertical", 24))
sketch4.addConstraint(Sketcher.Constraint("Horizontal", 25))
sketch4.addConstraint(Sketcher.Constraint("Vertical", 26))
sketch4.addConstraint(Sketcher.Constraint("Horizontal", 27))
sketch4.addConstraint(Sketcher.Constraint("Vertical", 28))
sketch4.addConstraint(Sketcher.Constraint("Horizontal", 29))
sketch4.addConstraint(Sketcher.Constraint("Vertical", 30))
sketch4.addConstraint(Sketcher.Constraint("Horizontal", 31))
sketch4.addConstraint(Sketcher.Constraint("Vertical", 32))
sketch4.addConstraint(Sketcher.Constraint("Horizontal", 33))
sketch4.addConstraint(Sketcher.Constraint("Vertical", 34))
sketch4.addConstraint(Sketcher.Constraint("Horizontal", 35))
sketch4.addConstraint(Sketcher.Constraint("Vertical", 36))
sketch4.addConstraint(Sketcher.Constraint("Horizontal", 37))
sketch4.addConstraint(Sketcher.Constraint("Vertical", 38))
sketch4.addConstraint(Sketcher.Constraint("Horizontal", 39))
sketch4.addConstraint(Sketcher.Constraint("Vertical", 40))
sketch4.addConstraint(Sketcher.Constraint("Horizontal", 41))
sketch4.addConstraint(Sketcher.Constraint("Vertical", 42))
sketch4.addConstraint(Sketcher.Constraint("Horizontal", 43))
sketch4.addConstraint(Sketcher.Constraint("Vertical", 44))
sketch4.addConstraint(Sketcher.Constraint("Horizontal", 45))
sketch4.addConstraint(Sketcher.Constraint("Vertical", 46))
sketch4.addConstraint(Sketcher.Constraint("Horizontal", 47))
sketch4.addConstraint(Sketcher.Constraint("Vertical", 48))
sketch4.addConstraint(Sketcher.Constraint("Horizontal", 49))
sketch4.addConstraint(Sketcher.Constraint("Vertical", 50))
sketch4.addConstraint(Sketcher.Constraint("Horizontal", 51))
sketch4.addConstraint(Sketcher.Constraint("Vertical", 52))
sketch4.addConstraint(Sketcher.Constraint("Horizontal", 53))
sketch4.addConstraint(Sketcher.Constraint("Vertical", 54))
sketch4.addConstraint(Sketcher.Constraint("Horizontal", 55))
sketch4.addConstraint(Sketcher.Constraint("Vertical", 56))
sketch4.addConstraint(Sketcher.Constraint("Horizontal", 57))
sketch4.addConstraint(Sketcher.Constraint("Vertical", 58))
sketch4.addConstraint(Sketcher.Constraint("Horizontal", 59))
sketch4.addConstraint(Sketcher.Constraint("Symmetric", 25, 2, 32, 2, -2))
sketch4.addConstraint(Sketcher.Constraint("Symmetric", 27, 2, 34, 2, -2))
sketch4.addConstraint(Sketcher.Constraint("Symmetric", 21, 2, 36, 2, -2))
sketch4.addConstraint(Sketcher.Constraint("Symmetric", 23, 2, 38, 2, -2))
sketch4.addConstraint(Sketcher.Constraint("Symmetric", 17, 2, 40, 2, -2))
sketch4.addConstraint(Sketcher.Constraint("Symmetric", 19, 2, 42, 2, -2))
sketch4.addConstraint(Sketcher.Constraint("Symmetric", 13, 2, 44, 2, -2))
sketch4.addConstraint(Sketcher.Constraint("Symmetric", 15, 2, 46, 2, -2))
sketch4.addConstraint(Sketcher.Constraint("Symmetric", 9, 2, 48, 2, -2))
sketch4.addConstraint(Sketcher.Constraint("Symmetric", 11, 2, 50, 2, -2))
sketch4.addConstraint(Sketcher.Constraint("Symmetric", 5, 2, 52, 2, -2))
sketch4.addConstraint(Sketcher.Constraint("Symmetric", 7, 2, 54, 2, -2))
sketch4.addConstraint(Sketcher.Constraint("Symmetric", 1, 2, 56, 2, -2))
sketch4.addConstraint(Sketcher.Constraint("Symmetric", 3, 2, 58, 2, -2))
sketch4.addConstraint(Sketcher.Constraint("Horizontal", 1, 2, 4, 2))
sketch4.addConstraint(Sketcher.Constraint("Horizontal", 3, 2, 6, 2))
sketch4.addConstraint(Sketcher.Constraint("Horizontal", 5, 2, 8, 2))
sketch4.addConstraint(Sketcher.Constraint("Horizontal", 7, 2, 10, 2))
sketch4.addConstraint(Sketcher.Constraint("Horizontal", 9, 2, 12, 2))
sketch4.addConstraint(Sketcher.Constraint("Horizontal", 11, 2, 14, 2))
sketch4.addConstraint(Sketcher.Constraint("Horizontal", 13, 2, 16, 2))
sketch4.addConstraint(Sketcher.Constraint("Horizontal", 15, 2, 18, 2))
sketch4.addConstraint(Sketcher.Constraint("Horizontal", 17, 2, 20, 2))
sketch4.addConstraint(Sketcher.Constraint("Horizontal", 19, 2, 22, 2))
sketch4.addConstraint(Sketcher.Constraint("Horizontal", 21, 2, 24, 2))
sketch4.addConstraint(Sketcher.Constraint("Horizontal", 23, 2, 26, 2))
sketch4.addConstraint(Sketcher.Constraint("Horizontal", 25, 2, 28, 2))
sketch4.addConstraint(Sketcher.Constraint("Horizontal", 27, 2, 30, 2))
sketch4.addConstraint(Sketcher.Constraint("Equal", 3, 5))
sketch4.addConstraint(Sketcher.Constraint("Equal", 7, 9))
sketch4.addConstraint(Sketcher.Constraint("Equal", 11, 13))
sketch4.addConstraint(Sketcher.Constraint("Equal", 15, 17))
sketch4.addConstraint(Sketcher.Constraint("Equal", 19, 21))
sketch4.addConstraint(Sketcher.Constraint("Equal", 23, 25))
sketch4.addConstraint(Sketcher.Constraint("Equal", 27, 29))
sketch4.addConstraint(Sketcher.Constraint("DistanceX", 1, 2, 1, 1, 0.3))
sketch4.addConstraint(Sketcher.Constraint("DistanceY", 0, 2, 0, 1, 0.8))
sketch4.addConstraint(Sketcher.Constraint("DistanceX", 4, 2, 0, 2, 1.0))
sketch4.addConstraint(Sketcher.Constraint("DistanceX", 8, 2, 4, 2, 1.0))
sketch4.addConstraint(Sketcher.Constraint("DistanceX", 12, 2, 8, 2, 1.0))
sketch4.addConstraint(Sketcher.Constraint("DistanceX", 16, 2, 12, 2, 1.0))
sketch4.addConstraint(Sketcher.Constraint("DistanceX", 20, 2, 16, 2, 1.0))
sketch4.addConstraint(Sketcher.Constraint("DistanceX", 24, 2, 20, 2, 1.0))
sketch4.addConstraint(Sketcher.Constraint("DistanceX", 28, 2, 24, 2, 1.0))
sketch4.addConstraint(Sketcher.Constraint("DistanceX", 32, 2, 28, 2, 1.0))
sketch4.addConstraint(Sketcher.Constraint("DistanceY", -1, 1, 0, 2, 2.025))
pad3 = body.newObject("PartDesign::Pad", "Pad002")
pad3.Profile = sketch4
pad3.Length = 0.3

doc.recompute()
